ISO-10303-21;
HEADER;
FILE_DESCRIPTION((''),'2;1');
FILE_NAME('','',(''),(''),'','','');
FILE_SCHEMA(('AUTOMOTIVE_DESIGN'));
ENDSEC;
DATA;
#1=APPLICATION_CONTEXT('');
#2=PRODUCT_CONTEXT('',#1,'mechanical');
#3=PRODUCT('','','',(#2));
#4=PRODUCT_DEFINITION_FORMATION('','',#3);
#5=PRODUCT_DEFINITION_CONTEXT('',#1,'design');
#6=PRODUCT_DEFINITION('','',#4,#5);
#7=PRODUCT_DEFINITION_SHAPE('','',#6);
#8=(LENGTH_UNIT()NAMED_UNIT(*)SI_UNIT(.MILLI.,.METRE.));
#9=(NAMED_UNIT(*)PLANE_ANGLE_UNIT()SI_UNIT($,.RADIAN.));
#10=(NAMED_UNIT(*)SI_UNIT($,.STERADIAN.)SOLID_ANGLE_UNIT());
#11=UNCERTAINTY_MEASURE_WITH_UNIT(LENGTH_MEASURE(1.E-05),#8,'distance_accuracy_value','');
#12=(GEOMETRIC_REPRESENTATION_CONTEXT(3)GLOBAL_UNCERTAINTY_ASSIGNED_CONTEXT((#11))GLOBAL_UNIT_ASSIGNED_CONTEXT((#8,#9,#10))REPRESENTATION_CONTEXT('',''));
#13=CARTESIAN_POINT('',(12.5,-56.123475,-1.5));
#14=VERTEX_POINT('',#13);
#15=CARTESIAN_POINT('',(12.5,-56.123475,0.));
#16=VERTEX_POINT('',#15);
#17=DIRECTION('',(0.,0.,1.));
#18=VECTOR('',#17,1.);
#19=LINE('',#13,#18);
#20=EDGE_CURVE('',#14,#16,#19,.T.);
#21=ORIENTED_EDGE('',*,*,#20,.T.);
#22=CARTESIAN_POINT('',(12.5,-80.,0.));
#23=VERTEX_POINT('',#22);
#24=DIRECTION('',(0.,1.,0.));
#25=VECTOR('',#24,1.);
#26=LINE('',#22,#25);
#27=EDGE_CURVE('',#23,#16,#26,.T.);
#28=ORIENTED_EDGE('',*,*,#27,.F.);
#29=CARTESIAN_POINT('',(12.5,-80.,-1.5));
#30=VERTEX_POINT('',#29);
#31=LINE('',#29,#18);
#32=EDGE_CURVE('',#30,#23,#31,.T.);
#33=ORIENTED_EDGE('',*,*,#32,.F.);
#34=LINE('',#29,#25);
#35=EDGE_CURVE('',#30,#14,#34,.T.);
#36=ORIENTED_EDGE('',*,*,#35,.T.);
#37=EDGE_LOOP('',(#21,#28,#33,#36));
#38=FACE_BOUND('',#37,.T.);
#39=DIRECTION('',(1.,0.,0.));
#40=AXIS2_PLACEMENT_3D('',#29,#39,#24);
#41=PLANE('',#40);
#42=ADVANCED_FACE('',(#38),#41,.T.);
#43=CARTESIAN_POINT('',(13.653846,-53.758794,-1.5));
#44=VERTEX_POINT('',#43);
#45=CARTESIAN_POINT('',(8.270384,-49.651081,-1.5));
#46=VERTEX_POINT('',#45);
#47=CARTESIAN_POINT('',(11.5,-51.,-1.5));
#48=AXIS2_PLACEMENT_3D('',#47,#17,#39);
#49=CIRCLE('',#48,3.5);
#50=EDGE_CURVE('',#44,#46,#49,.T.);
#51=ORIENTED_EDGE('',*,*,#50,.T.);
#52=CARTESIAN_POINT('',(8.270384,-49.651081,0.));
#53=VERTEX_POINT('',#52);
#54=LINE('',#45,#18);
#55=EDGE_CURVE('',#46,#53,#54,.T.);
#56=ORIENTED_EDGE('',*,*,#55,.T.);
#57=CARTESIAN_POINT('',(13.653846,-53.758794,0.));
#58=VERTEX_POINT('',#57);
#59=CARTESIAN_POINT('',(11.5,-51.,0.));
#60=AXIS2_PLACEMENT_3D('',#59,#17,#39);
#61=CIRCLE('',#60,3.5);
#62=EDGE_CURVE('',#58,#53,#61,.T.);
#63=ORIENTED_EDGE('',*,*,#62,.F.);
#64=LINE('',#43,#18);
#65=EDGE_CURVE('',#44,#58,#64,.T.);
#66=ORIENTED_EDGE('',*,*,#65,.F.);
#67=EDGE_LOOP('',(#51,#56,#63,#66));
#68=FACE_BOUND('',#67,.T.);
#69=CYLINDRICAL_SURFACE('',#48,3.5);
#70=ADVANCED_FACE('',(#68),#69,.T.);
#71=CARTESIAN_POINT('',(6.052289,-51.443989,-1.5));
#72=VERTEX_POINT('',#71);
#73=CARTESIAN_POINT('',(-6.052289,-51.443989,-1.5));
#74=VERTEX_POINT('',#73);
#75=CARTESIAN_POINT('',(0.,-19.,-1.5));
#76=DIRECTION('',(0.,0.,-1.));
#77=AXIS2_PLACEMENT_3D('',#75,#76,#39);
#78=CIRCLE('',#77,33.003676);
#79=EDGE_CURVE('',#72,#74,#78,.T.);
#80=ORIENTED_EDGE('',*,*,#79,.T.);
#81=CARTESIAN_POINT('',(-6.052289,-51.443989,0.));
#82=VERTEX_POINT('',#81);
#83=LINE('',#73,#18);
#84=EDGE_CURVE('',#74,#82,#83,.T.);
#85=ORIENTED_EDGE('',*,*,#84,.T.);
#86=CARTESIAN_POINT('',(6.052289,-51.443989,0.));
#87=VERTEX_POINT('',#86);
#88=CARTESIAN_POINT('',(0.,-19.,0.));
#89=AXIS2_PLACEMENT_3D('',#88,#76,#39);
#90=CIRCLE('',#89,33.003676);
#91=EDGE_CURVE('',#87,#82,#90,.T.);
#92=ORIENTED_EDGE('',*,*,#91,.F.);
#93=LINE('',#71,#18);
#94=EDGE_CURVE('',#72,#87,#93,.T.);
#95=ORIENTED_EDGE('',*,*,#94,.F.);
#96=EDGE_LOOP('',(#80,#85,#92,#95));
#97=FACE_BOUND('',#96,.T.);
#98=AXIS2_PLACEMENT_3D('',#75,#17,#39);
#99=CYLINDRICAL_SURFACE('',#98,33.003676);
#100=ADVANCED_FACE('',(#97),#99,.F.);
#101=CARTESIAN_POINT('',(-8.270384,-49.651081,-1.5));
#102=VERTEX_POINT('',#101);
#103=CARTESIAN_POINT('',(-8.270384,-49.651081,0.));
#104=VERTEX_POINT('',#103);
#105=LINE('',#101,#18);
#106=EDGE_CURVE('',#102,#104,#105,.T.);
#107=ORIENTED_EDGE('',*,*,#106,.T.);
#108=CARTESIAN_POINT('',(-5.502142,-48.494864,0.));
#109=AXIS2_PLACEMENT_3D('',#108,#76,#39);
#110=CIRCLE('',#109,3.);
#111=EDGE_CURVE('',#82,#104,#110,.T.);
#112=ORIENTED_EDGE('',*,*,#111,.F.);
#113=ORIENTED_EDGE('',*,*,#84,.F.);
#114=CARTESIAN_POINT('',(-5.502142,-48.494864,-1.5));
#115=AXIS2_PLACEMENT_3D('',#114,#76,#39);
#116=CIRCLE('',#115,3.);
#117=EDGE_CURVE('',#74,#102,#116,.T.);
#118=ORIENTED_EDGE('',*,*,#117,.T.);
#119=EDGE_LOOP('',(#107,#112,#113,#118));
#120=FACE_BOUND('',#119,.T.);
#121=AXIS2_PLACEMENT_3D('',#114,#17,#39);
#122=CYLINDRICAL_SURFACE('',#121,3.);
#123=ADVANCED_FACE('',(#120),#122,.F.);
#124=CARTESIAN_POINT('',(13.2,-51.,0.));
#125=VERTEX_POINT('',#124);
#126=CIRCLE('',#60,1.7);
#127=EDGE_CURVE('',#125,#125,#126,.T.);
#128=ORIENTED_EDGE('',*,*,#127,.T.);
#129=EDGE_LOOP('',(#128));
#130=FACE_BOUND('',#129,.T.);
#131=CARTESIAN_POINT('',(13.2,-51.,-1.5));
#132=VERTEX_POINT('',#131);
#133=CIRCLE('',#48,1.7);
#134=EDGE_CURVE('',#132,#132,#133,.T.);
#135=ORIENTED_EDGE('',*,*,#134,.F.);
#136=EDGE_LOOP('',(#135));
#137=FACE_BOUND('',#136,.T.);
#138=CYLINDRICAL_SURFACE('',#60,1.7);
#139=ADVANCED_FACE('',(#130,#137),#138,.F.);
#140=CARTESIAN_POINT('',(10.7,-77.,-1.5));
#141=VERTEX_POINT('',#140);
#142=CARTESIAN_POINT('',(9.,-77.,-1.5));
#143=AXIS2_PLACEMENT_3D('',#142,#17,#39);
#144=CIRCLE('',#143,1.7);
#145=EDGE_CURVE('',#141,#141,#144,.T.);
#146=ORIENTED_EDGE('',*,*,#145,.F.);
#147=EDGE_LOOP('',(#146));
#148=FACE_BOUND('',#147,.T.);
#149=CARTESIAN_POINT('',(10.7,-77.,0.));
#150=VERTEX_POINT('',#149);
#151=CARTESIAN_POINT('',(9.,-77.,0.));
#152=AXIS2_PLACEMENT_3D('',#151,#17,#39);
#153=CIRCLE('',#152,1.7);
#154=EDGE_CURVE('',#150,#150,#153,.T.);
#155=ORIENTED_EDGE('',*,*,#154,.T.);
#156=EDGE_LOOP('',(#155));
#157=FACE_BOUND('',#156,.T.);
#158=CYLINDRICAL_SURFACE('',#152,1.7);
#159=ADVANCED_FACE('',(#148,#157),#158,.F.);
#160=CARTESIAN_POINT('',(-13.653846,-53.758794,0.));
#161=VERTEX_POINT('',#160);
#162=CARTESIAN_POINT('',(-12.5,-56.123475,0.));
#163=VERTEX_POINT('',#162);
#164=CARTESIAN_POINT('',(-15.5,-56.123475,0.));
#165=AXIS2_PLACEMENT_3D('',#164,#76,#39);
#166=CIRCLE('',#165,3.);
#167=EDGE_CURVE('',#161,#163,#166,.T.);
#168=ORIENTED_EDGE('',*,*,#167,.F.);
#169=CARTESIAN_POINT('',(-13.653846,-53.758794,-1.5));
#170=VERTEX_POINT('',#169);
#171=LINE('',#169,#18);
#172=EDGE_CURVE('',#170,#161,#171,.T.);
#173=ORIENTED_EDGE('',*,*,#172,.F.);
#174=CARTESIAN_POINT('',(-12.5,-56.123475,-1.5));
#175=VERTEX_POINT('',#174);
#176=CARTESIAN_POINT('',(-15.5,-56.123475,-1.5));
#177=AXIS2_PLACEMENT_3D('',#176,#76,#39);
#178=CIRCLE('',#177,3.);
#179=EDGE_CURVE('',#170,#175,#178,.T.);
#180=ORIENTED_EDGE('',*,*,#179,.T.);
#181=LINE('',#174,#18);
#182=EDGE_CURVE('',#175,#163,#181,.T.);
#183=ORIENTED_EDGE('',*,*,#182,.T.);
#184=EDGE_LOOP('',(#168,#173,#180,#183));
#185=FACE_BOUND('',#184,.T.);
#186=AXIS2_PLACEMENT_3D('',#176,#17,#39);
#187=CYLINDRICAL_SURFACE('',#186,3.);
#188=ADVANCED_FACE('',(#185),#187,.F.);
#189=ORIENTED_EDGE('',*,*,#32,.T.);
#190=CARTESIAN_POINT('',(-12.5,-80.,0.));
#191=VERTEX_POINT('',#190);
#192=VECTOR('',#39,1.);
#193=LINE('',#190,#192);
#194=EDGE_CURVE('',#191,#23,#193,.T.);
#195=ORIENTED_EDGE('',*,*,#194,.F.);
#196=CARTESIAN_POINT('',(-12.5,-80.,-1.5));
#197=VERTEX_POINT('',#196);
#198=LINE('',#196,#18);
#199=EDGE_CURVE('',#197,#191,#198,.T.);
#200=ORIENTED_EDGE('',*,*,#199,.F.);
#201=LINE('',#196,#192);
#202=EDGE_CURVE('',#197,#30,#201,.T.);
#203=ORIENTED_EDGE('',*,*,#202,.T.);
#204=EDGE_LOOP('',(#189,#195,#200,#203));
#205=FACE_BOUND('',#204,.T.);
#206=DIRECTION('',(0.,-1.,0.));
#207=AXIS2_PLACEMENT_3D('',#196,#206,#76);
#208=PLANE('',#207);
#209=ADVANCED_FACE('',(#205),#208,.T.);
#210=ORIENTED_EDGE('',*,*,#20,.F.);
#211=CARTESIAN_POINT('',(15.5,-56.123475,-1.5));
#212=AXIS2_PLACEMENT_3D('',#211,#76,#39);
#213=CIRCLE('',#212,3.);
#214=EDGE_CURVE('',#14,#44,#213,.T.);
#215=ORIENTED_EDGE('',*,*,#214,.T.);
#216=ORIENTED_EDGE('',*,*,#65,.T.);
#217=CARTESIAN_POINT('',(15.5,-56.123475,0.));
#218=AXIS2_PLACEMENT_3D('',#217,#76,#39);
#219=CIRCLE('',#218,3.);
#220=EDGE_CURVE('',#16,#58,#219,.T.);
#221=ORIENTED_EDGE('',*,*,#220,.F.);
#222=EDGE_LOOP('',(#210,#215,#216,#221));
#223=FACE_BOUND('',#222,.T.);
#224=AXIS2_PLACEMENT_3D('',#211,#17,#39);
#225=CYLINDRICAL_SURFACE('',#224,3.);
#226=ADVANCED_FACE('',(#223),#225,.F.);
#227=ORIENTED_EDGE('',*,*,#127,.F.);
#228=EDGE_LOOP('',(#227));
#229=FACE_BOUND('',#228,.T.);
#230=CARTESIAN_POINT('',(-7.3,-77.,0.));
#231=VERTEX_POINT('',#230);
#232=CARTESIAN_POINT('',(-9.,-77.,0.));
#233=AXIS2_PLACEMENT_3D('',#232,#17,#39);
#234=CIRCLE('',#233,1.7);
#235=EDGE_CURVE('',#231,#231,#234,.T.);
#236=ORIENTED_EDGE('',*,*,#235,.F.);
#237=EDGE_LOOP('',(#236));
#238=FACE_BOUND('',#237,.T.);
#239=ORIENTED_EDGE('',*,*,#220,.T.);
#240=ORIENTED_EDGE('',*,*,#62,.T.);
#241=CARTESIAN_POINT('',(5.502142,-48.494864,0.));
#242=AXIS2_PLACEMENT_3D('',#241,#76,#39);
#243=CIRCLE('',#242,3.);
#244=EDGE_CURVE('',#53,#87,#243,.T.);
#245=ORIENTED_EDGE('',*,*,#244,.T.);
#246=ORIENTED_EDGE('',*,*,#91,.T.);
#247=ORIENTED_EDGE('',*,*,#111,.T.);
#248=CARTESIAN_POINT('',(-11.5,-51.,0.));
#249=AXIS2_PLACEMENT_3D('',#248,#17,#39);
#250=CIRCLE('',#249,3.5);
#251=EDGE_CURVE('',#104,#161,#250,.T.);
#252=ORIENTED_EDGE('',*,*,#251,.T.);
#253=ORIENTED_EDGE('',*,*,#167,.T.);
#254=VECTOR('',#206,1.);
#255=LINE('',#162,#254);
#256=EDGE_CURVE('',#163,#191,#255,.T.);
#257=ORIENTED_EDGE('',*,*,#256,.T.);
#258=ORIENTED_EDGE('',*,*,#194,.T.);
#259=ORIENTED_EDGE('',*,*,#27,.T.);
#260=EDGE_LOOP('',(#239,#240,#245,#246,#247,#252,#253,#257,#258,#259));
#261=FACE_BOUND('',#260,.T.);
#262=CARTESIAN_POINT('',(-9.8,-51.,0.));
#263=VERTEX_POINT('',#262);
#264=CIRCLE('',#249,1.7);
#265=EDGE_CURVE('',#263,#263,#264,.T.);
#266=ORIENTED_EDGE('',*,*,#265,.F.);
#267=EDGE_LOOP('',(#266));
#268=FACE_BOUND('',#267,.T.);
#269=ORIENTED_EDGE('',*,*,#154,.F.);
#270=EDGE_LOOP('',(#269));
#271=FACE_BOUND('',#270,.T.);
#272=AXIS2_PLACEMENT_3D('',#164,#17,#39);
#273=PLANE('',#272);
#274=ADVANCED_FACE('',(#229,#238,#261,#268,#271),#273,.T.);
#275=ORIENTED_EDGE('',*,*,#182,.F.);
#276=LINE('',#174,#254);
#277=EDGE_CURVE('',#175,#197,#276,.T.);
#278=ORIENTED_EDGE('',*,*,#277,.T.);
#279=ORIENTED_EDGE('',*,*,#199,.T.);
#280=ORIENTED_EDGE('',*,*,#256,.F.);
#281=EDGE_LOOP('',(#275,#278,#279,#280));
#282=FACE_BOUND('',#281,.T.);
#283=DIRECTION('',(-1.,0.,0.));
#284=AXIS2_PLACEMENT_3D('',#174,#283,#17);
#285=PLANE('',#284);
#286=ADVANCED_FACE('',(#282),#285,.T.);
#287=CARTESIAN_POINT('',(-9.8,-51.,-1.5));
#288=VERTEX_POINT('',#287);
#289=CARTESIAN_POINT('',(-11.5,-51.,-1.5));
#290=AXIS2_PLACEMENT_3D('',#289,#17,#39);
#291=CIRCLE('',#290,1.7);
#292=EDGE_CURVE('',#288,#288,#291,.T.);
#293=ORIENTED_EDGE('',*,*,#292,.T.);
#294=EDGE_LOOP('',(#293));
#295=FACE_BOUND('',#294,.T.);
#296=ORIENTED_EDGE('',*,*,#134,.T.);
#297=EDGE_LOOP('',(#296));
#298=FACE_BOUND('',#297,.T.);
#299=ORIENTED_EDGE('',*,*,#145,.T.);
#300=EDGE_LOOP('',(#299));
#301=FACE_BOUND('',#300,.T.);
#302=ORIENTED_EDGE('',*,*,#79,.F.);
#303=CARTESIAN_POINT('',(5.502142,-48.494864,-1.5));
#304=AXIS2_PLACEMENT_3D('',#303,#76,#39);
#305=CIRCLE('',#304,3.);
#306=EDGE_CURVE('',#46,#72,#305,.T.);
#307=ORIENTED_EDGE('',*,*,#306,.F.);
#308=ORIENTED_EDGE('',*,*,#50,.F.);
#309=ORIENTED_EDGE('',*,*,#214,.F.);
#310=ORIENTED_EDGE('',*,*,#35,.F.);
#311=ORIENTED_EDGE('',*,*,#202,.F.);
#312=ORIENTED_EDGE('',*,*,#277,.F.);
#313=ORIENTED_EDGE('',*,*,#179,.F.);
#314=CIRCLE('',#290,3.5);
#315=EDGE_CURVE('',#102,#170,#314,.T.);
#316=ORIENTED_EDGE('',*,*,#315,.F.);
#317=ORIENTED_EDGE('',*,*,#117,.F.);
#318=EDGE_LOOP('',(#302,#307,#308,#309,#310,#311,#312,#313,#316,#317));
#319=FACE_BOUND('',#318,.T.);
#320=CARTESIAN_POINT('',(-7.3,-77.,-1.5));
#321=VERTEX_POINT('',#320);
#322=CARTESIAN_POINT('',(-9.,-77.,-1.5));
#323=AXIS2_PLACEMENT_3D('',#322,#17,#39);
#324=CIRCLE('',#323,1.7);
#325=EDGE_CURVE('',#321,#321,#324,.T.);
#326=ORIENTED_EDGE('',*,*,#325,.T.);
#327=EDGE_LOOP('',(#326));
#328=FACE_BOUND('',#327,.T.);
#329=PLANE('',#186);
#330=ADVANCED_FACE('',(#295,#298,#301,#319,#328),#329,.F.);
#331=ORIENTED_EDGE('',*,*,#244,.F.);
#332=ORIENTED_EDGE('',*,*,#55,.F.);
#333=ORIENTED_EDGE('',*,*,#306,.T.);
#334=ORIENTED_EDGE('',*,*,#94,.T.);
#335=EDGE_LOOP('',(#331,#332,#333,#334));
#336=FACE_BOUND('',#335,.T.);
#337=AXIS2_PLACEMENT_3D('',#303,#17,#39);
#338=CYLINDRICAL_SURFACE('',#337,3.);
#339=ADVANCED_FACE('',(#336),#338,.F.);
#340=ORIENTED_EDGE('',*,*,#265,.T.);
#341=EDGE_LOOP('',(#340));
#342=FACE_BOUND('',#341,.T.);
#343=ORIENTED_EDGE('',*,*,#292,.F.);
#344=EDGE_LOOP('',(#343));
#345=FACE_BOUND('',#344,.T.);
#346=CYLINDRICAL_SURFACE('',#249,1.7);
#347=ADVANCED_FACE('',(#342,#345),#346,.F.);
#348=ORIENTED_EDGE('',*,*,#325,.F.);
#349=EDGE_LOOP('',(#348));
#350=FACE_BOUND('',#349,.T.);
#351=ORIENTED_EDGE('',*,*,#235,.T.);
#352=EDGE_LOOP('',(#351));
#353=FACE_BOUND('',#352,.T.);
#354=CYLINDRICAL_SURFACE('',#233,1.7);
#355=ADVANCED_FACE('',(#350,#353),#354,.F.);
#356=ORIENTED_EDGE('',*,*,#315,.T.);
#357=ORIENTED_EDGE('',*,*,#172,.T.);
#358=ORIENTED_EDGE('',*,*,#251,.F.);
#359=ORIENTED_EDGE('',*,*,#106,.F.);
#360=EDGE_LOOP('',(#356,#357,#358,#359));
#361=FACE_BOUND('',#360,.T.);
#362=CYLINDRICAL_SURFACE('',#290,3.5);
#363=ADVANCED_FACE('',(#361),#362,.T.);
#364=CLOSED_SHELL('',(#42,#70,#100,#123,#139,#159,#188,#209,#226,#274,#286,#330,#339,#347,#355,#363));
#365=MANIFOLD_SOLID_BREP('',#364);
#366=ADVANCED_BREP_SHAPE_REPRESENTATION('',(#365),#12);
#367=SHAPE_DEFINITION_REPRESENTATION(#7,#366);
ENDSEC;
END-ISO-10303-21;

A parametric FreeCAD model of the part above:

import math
import FreeCAD as App
import Part
import Sketcher

V = App.Vector
Q = App.Units.Quantity

doc = App.newDocument("Part")
body = doc.addObject("PartDesign::Body", "Body")

sketch1 = body.newObject("Sketcher::SketchObject", "Sketch")
sketch1.AttachmentSupport = (doc.getObject("XY_Plane"), [""])
sketch1.MapMode = "FlatFace"
sketch1.addGeometry(Part.LineSegment(V(-12.5, -56.1, 0), V(-12.5, -80, 0)), False)
sketch1.addGeometry(Part.LineSegment(V(-12.5, -80, 0), V(12.5, -80, 0)), False)
sketch1.addGeometry(Part.LineSegment(V(12.5, -80, 0), V(12.5, -56.1, 0)), False)
sketch1.addGeometry(Part.ArcOfCircle(Part.Circle(V(15.5, -56.1, 0), V(0, 0, 1), 3), math.radians(128), math.radians(180)), False)
sketch1.addGeometry(Part.ArcOfCircle(Part.Circle(V(11.5, -51, 0), V(0, 0, 1), 3.5), math.radians(-52), math.radians(157)), False)
sketch1.addGeometry(Part.ArcOfCircle(Part.Circle(V(5.5, -48.5, 0), V(0, 0, 1), 3), math.radians(-79), math.radians(-23)), False)
sketch1.addGeometry(Part.ArcOfCircle(Part.Circle(V(0, -19, 0), V(0, 0, 1), 33), math.radians(-101), math.radians(-79)), False)
sketch1.addGeometry(Part.ArcOfCircle(Part.Circle(V(-5.5, -48.5, 0), V(0, 0, 1), 3), math.radians(-157), math.radians(-101)), False)
sketch1.addGeometry(Part.ArcOfCircle(Part.Circle(V(-11.5, -51, 0), V(0, 0, 1), 3.5), math.radians(23), math.radians(232)), False)
sketch1.addGeometry(Part.ArcOfCircle(Part.Circle(V(-15.5, -56.1, 0), V(0, 0, 1), 3), math.radians(0), math.radians(52)), False)
sketch1.addConstraint(Sketcher.Constraint("Coincident", 0, 2, 1, 1))
sketch1.addConstraint(Sketcher.Constraint("Coincident", 1, 2, 2, 1))
sketch1.addConstraint(Sketcher.Constraint("Tangent", 2, 2, 3, 2))
sketch1.addConstraint(Sketcher.Constraint("Tangent", 3, 1, 4, 1))
sketch1.addConstraint(Sketcher.Constraint("Tangent", 4, 2, 5, 2))
sketch1.addConstraint(Sketcher.Constraint("Tangent", 5, 1, 6, 2))
sketch1.addConstraint(Sketcher.Constraint("Tangent", 6, 1, 7, 2))
sketch1.addConstraint(Sketcher.Constraint("Tangent", 7, 1, 8, 1))
sketch1.addConstraint(Sketcher.Constraint("Tangent", 8, 2, 9, 2))
sketch1.addConstraint(Sketcher.Constraint("Tangent", 9, 1, 0, 1))
sketch1.addConstraint(Sketcher.Constraint("Vertical", 0))
sketch1.addConstraint(Sketcher.Constraint("Horizontal", 1))
sketch1.addConstraint(Sketcher.Constraint("Vertical", 2))
sketch1.addConstraint(Sketcher.Constraint("Equal", 3, 5))
sketch1.addConstraint(Sketcher.Constraint("Equal", 5, 7))
sketch1.addConstraint(Sketcher.Constraint("Equal", 4, 8))
sketch1.addConstraint(Sketcher.Constraint("Equal", 7, 9))
sketch1.addConstraint(Sketcher.Constraint("Symmetric", 5, 3, 7, 3, -2))
sketch1.addConstraint(Sketcher.Constraint("Symmetric", 3, 3, 9, 3, -2))
sketch1.addConstraint(Sketcher.Constraint("Radius", 3, Q("3 mm")))
sketch1.addConstraint(Sketcher.Constraint("Radius", 4, Q("3.5 mm")))
sketch1.addConstraint(Sketcher.Constraint("DistanceX", 1, 1, 1, 2, Q("25 mm")))
sketch1.addConstraint(Sketcher.Constraint("DistanceY", 4, 3, -1, 1, Q("51 mm")))
sketch1.addConstraint(Sketcher.Constraint("DistanceY", 6, 3, -1, 1, Q("19 mm")))
sketch1.addConstraint(Sketcher.Constraint("DistanceY", 0, 2, -1, 1, Q("80 mm")))
sketch1.addConstraint(Sketcher.Constraint("DistanceX", 4, 3, 3, 3, Q("4 mm")))
sketch1.addConstraint(Sketcher.Constraint("Radius", 6, Q("33.003676 mm")))
pad1 = body.newObject("PartDesign::Pad", "Pad")
pad1.Profile = sketch1
pad1.Length = 1.5
pad1.Reversed = True

sketch2 = body.newObject("Sketcher::SketchObject", "Sketch001")
sketch2.AttachmentSupport = (doc.getObject("XY_Plane"), [""])
sketch2.MapMode = "FlatFace"
sketch2.addGeometry(Part.Circle(V(11.5, -51, 0), V(0, 0, 1), 1.7), False)
sketch2.addGeometry(Part.Circle(V(-11.5, -51, 0), V(0, 0, 1), 1.7), False)
sketch2.addGeometry(Part.Circle(V(9, -77, 0), V(0, 0, 1), 1.7), False)
sketch2.addGeometry(Part.Circle(V(-9, -77, 0), V(0, 0, 1), 1.7), False)
sketch2.addConstraint(Sketcher.Constraint("Equal", 0, 1))
sketch2.addConstraint(Sketcher.Constraint("Equal", 1, 2))
sketch2.addConstraint(Sketcher.Constraint("Equal", 2, 3))
sketch2.addConstraint(Sketcher.Constraint("Symmetric", 0, 3, 1, 3, -2))
sketch2.addConstraint(Sketcher.Constraint("Symmetric", 2, 3, 3, 3, -2))
sketch2.addConstraint(Sketcher.Constraint("Diameter", 0, Q("3.4 mm")))
sketch2.addConstraint(Sketcher.Constraint("DistanceY", 0, 3, -1, 1, Q("51 mm")))
sketch2.addConstraint(Sketcher.Constraint("DistanceX", -1, 1, 2, 3, Q("9 mm")))
sketch2.addConstraint(Sketcher.Constraint("DistanceY", 2, 3, -1, 1, Q("77 mm")))
sketch2.addConstraint(Sketcher.Constraint("DistanceX", 1, 3, 0, 3, Q("23 mm")))
doc.recompute()
hole = body.newObject("PartDesign::Hole", "Hole")
hole.Profile = sketch2
hole.ThreadType = "None"
hole.Diameter = 3.4
hole.DepthType = "Dimension"
hole.Depth = 1.5
hole.DrillPoint = "Flat"

doc.recompute()
